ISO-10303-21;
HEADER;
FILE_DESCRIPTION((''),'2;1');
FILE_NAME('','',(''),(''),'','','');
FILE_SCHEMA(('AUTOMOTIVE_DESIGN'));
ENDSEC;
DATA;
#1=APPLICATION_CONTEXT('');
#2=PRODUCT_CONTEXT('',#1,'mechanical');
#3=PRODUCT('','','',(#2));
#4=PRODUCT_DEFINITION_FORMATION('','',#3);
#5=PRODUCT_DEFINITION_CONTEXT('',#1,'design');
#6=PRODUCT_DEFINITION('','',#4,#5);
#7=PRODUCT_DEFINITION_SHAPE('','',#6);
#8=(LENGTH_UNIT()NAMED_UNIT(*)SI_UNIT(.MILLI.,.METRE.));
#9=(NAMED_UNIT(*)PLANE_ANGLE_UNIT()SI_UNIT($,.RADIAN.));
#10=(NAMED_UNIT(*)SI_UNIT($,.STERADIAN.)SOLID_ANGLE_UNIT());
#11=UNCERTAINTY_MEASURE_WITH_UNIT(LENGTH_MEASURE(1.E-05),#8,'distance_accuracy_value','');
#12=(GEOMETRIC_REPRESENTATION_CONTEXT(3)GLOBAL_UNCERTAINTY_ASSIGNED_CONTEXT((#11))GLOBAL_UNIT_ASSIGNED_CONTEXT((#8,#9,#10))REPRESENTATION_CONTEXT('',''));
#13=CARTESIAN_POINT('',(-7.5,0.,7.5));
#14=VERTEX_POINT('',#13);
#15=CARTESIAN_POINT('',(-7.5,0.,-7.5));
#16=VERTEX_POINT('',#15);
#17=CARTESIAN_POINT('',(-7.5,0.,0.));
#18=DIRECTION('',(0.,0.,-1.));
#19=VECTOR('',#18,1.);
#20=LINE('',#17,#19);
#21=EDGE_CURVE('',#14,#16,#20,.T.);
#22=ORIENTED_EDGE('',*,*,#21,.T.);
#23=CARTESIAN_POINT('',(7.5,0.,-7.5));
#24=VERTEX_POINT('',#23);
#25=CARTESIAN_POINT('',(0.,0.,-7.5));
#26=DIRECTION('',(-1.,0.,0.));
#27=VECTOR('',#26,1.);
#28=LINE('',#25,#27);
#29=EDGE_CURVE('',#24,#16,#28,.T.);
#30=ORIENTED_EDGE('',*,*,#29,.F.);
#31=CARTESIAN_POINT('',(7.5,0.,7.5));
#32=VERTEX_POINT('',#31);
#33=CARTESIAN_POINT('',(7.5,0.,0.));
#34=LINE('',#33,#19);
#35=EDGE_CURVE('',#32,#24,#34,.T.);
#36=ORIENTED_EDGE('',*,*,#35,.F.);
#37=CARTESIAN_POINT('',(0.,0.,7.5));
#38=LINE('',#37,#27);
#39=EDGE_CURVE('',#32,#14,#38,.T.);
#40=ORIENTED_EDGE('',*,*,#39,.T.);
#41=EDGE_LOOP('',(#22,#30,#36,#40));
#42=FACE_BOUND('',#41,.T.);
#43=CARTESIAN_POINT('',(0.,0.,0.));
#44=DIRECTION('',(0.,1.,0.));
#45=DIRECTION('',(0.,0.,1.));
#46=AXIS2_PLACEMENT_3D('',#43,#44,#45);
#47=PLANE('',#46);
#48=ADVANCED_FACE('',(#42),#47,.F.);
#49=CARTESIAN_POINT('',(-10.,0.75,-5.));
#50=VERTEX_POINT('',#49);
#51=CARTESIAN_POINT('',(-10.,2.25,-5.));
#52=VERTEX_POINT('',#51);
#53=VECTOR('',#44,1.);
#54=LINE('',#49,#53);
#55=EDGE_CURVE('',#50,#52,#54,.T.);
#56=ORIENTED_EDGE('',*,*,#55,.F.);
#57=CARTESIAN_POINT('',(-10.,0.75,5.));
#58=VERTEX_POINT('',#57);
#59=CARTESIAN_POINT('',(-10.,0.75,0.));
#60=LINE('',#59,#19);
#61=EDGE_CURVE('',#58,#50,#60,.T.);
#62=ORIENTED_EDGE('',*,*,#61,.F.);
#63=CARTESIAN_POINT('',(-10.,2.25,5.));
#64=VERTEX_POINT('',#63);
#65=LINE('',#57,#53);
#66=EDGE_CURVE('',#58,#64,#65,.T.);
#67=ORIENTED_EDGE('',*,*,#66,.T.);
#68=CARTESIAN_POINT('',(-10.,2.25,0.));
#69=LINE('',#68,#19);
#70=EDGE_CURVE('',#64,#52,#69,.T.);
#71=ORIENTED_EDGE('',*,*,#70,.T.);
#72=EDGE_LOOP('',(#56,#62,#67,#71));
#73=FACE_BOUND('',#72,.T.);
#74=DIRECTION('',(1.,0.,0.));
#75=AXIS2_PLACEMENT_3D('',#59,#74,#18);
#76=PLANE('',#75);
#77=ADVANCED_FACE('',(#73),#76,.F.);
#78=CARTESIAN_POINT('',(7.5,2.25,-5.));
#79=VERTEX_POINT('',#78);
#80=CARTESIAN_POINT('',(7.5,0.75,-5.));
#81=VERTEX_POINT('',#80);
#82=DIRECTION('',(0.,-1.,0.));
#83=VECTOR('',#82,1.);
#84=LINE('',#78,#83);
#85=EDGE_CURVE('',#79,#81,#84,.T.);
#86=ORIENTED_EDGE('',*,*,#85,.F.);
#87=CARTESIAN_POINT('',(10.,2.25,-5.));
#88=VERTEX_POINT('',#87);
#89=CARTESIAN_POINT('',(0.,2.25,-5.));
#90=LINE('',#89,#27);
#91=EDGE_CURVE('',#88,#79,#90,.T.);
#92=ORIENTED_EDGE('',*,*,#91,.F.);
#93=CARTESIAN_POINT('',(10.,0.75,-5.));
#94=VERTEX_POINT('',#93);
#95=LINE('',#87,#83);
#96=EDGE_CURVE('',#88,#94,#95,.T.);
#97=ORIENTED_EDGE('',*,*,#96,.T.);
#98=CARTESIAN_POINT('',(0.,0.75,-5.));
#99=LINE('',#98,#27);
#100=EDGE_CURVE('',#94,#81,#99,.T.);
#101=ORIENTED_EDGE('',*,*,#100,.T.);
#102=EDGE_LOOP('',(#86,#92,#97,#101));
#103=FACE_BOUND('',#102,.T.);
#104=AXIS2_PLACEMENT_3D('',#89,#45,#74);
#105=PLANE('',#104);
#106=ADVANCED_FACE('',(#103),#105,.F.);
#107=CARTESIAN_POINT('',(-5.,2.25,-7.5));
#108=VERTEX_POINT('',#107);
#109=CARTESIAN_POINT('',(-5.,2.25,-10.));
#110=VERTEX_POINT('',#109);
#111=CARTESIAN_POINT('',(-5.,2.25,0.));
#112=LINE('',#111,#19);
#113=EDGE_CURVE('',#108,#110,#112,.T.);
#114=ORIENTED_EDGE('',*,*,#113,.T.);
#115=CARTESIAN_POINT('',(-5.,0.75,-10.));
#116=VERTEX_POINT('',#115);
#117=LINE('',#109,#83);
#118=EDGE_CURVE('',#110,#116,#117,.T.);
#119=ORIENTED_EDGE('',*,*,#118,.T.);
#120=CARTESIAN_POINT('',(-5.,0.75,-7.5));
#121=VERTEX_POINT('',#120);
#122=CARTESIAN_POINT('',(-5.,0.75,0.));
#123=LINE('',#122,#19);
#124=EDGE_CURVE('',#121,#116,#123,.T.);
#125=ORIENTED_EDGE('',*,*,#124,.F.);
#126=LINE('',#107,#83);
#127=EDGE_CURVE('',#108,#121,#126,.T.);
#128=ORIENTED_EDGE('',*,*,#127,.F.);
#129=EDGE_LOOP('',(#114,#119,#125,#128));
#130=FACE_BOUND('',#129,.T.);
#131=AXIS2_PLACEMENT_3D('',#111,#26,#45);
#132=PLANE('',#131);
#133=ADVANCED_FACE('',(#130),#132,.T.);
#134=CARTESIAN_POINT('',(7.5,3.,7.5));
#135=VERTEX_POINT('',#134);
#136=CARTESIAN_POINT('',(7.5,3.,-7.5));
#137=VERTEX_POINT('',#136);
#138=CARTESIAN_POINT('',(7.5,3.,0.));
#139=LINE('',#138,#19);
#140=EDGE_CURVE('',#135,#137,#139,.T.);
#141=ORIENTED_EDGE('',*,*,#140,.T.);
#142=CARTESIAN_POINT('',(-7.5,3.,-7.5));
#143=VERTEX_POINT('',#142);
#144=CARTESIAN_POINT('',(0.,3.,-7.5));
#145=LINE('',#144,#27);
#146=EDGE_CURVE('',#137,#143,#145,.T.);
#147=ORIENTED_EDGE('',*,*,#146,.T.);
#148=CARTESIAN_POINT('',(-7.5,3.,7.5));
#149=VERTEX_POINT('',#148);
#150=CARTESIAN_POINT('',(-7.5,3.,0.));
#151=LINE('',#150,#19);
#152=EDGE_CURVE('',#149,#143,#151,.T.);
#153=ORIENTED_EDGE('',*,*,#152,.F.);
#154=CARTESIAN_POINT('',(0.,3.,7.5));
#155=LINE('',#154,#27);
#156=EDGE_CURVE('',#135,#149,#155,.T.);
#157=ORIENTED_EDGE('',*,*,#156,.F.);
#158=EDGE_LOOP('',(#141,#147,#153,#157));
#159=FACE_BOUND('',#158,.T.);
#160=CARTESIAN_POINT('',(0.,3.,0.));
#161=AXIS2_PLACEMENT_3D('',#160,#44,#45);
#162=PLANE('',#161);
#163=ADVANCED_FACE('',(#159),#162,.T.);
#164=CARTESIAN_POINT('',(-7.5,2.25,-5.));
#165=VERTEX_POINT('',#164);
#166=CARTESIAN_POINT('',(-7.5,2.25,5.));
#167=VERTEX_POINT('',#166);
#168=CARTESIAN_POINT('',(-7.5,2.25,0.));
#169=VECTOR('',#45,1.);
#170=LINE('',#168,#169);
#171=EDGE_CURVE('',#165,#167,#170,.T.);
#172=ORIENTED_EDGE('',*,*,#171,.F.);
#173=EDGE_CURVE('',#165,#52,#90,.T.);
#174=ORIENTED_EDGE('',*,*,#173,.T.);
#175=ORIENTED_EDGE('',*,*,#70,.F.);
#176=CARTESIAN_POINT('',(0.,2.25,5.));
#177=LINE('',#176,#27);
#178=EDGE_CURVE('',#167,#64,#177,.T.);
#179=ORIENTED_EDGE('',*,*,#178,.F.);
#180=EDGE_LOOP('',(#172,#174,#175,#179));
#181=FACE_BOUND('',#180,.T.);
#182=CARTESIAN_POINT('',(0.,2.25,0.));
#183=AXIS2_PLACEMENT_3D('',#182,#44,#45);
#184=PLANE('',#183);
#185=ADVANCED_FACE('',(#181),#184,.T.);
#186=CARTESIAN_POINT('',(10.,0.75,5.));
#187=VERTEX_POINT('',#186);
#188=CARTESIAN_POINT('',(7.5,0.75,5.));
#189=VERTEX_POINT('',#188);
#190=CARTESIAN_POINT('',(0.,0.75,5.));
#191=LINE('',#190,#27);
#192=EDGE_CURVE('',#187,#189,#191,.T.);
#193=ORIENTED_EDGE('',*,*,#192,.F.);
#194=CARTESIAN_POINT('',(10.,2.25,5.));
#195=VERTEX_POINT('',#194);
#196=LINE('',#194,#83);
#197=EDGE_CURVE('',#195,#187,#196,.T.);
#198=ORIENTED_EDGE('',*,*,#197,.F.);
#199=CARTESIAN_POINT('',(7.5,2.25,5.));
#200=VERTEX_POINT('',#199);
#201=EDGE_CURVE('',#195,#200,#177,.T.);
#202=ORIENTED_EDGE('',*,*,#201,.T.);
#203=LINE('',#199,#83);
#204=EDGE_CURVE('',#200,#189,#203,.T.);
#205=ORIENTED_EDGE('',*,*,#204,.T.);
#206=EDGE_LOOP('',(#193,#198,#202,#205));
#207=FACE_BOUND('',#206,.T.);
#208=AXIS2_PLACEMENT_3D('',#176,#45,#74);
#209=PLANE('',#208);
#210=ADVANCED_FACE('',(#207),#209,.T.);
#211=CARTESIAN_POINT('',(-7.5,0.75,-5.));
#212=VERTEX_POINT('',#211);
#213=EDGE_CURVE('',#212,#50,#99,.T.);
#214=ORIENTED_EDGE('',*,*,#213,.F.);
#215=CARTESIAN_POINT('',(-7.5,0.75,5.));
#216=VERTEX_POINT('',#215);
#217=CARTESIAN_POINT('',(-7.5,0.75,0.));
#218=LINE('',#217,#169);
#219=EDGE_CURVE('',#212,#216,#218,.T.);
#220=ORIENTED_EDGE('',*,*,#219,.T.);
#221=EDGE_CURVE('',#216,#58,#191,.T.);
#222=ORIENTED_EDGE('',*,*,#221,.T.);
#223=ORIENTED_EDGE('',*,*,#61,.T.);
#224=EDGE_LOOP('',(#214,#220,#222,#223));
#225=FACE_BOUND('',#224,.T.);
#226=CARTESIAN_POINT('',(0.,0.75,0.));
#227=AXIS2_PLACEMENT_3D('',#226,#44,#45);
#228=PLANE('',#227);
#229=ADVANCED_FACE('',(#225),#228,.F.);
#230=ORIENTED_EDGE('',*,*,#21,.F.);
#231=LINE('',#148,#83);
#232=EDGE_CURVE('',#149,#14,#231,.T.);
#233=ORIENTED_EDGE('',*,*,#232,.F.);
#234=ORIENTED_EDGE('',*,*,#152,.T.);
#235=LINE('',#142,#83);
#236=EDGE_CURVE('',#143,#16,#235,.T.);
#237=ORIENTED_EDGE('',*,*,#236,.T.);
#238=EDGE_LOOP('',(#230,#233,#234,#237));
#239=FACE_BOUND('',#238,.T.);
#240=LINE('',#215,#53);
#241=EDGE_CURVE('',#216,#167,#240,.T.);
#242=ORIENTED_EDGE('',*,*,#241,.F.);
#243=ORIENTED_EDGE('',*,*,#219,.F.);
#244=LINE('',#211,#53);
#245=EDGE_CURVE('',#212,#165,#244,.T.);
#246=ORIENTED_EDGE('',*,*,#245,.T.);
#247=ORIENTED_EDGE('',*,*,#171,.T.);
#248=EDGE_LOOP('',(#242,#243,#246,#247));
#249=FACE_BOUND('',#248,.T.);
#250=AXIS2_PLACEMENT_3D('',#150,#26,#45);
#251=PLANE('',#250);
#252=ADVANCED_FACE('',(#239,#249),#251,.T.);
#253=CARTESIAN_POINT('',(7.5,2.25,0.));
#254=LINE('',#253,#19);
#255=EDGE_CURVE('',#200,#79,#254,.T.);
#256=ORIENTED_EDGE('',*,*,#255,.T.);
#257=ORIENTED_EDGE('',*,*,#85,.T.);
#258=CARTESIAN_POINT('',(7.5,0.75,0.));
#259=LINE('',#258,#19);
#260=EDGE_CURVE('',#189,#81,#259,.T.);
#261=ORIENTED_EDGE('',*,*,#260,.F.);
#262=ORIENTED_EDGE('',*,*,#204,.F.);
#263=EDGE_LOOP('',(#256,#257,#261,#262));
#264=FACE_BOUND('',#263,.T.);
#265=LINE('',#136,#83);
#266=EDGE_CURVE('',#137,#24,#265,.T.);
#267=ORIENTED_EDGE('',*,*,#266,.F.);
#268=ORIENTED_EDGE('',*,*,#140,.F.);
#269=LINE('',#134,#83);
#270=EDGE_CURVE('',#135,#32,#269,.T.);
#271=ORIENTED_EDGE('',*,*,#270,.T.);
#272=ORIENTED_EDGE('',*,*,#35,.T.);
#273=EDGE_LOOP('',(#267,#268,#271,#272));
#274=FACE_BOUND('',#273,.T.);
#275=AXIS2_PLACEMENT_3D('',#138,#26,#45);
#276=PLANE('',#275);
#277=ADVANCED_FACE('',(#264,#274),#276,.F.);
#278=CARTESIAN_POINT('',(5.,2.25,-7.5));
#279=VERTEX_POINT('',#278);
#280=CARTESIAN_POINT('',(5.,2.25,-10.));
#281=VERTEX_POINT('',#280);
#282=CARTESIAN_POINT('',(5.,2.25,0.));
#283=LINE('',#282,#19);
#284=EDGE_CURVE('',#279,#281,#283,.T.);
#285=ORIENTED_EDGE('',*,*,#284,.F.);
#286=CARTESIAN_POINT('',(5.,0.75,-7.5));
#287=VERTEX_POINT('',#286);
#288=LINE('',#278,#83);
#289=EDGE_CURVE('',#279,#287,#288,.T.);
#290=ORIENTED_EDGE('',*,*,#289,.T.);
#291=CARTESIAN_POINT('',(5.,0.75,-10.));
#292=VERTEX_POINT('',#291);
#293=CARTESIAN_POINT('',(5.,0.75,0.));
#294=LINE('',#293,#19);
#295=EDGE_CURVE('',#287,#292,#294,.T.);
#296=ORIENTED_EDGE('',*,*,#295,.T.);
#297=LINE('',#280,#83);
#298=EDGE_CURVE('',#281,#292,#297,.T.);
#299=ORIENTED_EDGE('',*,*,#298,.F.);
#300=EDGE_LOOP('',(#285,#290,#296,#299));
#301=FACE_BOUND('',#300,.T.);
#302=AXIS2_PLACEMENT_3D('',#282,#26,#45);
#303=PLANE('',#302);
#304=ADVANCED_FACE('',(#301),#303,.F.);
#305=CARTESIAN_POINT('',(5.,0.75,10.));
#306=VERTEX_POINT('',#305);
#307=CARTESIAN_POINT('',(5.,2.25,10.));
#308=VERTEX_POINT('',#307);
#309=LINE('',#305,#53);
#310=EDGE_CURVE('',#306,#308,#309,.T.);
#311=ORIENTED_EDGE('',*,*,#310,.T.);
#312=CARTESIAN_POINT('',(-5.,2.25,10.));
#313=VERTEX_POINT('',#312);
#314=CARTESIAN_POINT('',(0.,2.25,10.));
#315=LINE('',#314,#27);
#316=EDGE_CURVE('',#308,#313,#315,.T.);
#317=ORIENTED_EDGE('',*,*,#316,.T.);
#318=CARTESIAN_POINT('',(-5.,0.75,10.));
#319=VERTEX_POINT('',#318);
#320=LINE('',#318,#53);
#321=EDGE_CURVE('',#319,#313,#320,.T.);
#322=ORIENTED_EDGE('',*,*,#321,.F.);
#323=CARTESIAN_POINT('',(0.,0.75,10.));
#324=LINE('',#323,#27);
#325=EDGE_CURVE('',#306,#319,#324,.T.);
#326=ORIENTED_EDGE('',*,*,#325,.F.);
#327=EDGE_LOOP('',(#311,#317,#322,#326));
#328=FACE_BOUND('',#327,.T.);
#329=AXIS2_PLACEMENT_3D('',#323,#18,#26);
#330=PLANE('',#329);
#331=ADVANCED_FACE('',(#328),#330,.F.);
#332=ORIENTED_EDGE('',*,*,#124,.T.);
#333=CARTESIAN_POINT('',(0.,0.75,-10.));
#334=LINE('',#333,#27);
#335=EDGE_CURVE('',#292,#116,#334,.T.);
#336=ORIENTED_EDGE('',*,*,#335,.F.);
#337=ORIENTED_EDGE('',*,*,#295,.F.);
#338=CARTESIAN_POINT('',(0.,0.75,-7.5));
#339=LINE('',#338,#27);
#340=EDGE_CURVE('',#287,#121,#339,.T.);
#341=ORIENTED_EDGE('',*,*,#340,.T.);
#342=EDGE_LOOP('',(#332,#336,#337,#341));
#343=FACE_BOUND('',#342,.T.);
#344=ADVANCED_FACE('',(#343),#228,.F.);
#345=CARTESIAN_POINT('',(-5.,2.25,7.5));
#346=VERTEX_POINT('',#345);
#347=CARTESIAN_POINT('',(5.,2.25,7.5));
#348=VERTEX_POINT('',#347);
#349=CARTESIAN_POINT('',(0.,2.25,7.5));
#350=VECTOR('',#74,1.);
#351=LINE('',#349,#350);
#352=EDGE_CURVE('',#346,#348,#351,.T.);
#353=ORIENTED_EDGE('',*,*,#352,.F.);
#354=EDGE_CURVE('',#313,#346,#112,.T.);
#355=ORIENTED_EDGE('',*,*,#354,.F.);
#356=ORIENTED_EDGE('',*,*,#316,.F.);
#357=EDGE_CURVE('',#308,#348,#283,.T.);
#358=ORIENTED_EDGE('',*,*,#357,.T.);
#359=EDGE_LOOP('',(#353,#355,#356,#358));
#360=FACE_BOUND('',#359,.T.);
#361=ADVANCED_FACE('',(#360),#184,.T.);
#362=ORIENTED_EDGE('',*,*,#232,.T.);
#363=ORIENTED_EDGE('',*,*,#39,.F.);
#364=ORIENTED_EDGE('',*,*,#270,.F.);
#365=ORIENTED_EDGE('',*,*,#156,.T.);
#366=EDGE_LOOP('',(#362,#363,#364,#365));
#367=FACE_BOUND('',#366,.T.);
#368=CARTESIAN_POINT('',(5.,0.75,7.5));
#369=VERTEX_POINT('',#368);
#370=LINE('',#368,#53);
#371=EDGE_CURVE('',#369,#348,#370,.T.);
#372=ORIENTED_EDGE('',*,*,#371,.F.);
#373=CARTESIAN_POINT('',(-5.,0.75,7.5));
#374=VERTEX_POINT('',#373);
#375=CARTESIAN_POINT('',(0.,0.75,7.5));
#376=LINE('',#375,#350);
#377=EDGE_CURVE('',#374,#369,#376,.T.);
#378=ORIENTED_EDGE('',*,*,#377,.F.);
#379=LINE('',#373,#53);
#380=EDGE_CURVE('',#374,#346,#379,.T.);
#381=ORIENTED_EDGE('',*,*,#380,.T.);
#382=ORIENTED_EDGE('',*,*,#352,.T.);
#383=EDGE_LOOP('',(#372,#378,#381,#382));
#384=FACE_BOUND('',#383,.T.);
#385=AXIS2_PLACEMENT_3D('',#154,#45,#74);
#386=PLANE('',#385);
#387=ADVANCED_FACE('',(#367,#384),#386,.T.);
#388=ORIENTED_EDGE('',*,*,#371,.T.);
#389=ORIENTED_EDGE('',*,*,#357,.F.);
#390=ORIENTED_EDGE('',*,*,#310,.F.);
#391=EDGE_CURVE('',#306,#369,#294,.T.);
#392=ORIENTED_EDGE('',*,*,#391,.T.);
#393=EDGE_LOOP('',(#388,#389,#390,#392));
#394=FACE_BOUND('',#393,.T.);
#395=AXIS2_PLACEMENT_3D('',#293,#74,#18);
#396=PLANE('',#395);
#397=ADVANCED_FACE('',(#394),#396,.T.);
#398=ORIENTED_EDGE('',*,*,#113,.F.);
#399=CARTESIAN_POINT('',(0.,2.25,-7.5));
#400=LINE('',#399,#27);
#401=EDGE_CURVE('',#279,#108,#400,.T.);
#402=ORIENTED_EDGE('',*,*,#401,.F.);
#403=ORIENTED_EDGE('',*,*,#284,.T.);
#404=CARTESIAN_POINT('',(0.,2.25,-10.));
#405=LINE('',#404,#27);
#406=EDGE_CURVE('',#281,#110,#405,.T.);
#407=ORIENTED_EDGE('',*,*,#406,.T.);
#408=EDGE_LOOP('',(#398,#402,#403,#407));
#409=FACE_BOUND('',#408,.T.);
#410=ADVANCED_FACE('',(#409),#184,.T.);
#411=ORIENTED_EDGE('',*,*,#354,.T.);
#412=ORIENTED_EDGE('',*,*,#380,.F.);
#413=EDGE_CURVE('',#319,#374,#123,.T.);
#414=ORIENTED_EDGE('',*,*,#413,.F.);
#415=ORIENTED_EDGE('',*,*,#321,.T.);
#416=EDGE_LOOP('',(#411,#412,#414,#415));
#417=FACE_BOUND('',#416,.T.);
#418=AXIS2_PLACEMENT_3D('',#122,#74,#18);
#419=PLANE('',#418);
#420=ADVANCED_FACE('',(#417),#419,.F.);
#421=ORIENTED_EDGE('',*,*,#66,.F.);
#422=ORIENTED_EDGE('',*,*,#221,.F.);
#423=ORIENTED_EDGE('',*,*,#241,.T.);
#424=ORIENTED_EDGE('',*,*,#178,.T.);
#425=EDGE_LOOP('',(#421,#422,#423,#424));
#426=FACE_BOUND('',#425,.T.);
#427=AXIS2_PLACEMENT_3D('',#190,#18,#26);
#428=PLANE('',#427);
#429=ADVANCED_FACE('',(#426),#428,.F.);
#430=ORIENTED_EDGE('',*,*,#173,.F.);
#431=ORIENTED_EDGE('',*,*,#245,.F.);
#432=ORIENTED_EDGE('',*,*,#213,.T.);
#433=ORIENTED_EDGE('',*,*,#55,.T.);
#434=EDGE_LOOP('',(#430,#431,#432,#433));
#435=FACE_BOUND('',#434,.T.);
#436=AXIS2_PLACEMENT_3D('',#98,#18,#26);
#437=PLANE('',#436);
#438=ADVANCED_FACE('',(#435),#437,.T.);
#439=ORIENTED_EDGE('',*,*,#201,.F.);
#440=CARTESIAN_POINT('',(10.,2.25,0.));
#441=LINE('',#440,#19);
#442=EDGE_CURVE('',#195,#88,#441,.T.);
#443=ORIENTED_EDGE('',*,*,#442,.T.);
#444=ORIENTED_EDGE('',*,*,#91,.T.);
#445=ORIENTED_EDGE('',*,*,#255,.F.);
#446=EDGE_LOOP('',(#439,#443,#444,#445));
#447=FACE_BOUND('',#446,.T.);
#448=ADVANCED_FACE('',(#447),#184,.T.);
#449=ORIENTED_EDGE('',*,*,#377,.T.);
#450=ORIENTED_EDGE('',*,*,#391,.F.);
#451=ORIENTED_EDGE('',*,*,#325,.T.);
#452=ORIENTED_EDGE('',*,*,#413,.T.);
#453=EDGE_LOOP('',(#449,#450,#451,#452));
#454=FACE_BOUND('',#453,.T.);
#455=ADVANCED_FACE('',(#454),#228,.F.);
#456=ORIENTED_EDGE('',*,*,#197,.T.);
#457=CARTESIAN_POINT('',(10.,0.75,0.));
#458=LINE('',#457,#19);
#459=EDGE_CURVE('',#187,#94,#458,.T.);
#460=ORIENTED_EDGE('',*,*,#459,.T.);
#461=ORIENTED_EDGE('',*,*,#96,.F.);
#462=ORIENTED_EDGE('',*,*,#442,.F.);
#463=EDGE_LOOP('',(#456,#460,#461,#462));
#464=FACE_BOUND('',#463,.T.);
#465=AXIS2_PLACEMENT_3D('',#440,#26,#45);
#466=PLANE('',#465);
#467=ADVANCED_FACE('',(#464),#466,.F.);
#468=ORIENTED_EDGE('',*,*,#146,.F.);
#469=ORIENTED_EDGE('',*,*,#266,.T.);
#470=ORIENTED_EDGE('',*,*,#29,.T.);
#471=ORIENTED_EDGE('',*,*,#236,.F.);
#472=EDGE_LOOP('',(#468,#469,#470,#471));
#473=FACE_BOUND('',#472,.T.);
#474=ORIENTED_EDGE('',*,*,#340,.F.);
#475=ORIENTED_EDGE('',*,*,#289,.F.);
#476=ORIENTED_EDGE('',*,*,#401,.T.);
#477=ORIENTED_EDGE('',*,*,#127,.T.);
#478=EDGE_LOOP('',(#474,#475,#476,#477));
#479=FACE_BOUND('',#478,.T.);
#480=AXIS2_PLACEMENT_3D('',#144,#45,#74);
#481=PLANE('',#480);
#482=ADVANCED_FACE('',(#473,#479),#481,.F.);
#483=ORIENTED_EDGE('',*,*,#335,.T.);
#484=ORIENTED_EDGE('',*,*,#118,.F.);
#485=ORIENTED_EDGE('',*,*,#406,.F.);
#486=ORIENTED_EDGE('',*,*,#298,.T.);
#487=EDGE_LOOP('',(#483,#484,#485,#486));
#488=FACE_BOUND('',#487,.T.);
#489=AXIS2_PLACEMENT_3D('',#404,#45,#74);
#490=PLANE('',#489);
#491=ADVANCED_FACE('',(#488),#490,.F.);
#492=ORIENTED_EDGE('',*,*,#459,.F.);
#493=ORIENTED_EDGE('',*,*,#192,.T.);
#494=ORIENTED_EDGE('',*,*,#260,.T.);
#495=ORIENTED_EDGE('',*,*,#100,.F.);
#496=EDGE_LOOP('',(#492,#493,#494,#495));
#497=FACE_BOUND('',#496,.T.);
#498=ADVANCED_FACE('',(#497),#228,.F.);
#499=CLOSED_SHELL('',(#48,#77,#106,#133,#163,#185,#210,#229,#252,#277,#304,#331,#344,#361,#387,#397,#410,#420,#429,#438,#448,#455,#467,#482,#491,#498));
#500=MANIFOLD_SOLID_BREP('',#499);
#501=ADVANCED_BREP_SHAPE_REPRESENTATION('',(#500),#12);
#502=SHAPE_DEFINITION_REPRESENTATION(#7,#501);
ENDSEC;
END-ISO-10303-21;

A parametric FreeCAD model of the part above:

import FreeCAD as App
import Part
import Sketcher
from FreeCAD import Vector


def add_polygon(sketch, points):
    """Adds a closed chain of lines whose ends are joined by coincident constraints."""
    first, n = sketch.GeometryCount, len(points)
    for a, b in zip(points, points[1:] + points[:1]):
        sketch.addGeometry(Part.LineSegment(App.Vector(*a, 0), App.Vector(*b, 0)), False)
    for i in range(n):
        sketch.addConstraint(Sketcher.Constraint("Coincident", first + i, 2, first + (i + 1) % n, 1))

doc = App.newDocument("Part")
body = doc.addObject("PartDesign::Body", "Body")

sketch1 = body.newObject("Sketcher::SketchObject", "Sketch")
sketch1.AttachmentSupport = (doc.getObject("XZ_Plane"), [""])
sketch1.MapMode = "FlatFace"
add_polygon(sketch1, [(-8, -8), (-8, 8), (8, 8), (8, -8)])
sketch1.addConstraint([
    Sketcher.Constraint("Vertical", 0),
    Sketcher.Constraint("Horizontal", 1),
    Sketcher.Constraint("Vertical", 2),
    Sketcher.Constraint("Horizontal", 3),
    Sketcher.Constraint("Symmetric", 0, 2, 2, 2, -1, 1),
    Sketcher.Constraint("Equal", 3, 0),
    Sketcher.Constraint("DistanceX", 1, 1, 1, 2, 15.0),
])
pad1 = body.newObject("PartDesign::Pad", "Pad")
pad1.Profile = sketch1
pad1.Length = 3
pad1.Reversed = True

sketch2 = body.newObject("Sketcher::SketchObject", "Sketch001")
sketch2.AttachmentSupport = (doc.getObject("XZ_Plane"), [""])
sketch2.MapMode = "FlatFace"
sketch2.AttachmentOffset = App.Placement(Vector(0, 0, -1.5), App.Rotation())
add_polygon(sketch2, [(-10, -5), (-10, 5), (-7.5, 5), (-7.5, -5)])
add_polygon(sketch2, [(-5, 7.5), (-5, 10), (5, 10), (5, 7.5)])
add_polygon(sketch2, [(7.5, -5), (7.5, 5), (10, 5), (10, -5)])
add_polygon(sketch2, [(-5, -10), (-5, -7.5), (5, -7.5), (5, -10)])
sketch2.addConstraint([
    Sketcher.Constraint("Vertical", 0),
    Sketcher.Constraint("Horizontal", 1),
    Sketcher.Constraint("Vertical", 2),
    Sketcher.Constraint("Horizontal", 3),
    Sketcher.Constraint("Vertical", 4),
    Sketcher.Constraint("Horizontal", 5),
    Sketcher.Constraint("Vertical", 6),
    Sketcher.Constraint("Horizontal", 7),
    Sketcher.Constraint("Vertical", 8),
    Sketcher.Constraint("Horizontal", 9),
    Sketcher.Constraint("Vertical", 10),
    Sketcher.Constraint("Horizontal", 11),
    Sketcher.Constraint("Vertical", 12),
    Sketcher.Constraint("Horizontal", 13),
    Sketcher.Constraint("Vertical", 14),
    Sketcher.Constraint("Horizontal", 15),
    Sketcher.Constraint("Symmetric", 2, 2, 8, 2, -1, 1),
    Sketcher.Constraint("Symmetric", 0, 2, 10, 2, -1, 1),
    Sketcher.Constraint("Symmetric", 6, 2, 12, 2, -1, 1),
    Sketcher.Constraint("Symmetric", 4, 2, 14, 2, -1, 1),
    Sketcher.Constraint("Horizontal", 1, 2, 8, 2),
    Sketcher.Constraint("Vertical", 7, 2, 12, 2),
    Sketcher.Constraint("Equal", 15, 0),
    Sketcher.Constraint("Equal", 11, 4),
    Sketcher.Constraint("DistanceX", 5, 1, 5, 2, 10.0),
    Sketcher.Constraint("DistanceX", 1, 1, 1, 2, 2.5),
    Sketcher.Constraint("DistanceX", 0, 2, -1, 1, 10.0),
    Sketcher.Constraint("DistanceY", -1, 1, 4, 2, 10.0),
])
pad2 = body.newObject("PartDesign::Pad", "Pad001")
pad2.Profile = sketch2
pad2.Type = "TwoLengths"
pad2.Length = 0.75
pad2.Length2 = 0.75
pad2.Reversed = True

doc.recompute()
